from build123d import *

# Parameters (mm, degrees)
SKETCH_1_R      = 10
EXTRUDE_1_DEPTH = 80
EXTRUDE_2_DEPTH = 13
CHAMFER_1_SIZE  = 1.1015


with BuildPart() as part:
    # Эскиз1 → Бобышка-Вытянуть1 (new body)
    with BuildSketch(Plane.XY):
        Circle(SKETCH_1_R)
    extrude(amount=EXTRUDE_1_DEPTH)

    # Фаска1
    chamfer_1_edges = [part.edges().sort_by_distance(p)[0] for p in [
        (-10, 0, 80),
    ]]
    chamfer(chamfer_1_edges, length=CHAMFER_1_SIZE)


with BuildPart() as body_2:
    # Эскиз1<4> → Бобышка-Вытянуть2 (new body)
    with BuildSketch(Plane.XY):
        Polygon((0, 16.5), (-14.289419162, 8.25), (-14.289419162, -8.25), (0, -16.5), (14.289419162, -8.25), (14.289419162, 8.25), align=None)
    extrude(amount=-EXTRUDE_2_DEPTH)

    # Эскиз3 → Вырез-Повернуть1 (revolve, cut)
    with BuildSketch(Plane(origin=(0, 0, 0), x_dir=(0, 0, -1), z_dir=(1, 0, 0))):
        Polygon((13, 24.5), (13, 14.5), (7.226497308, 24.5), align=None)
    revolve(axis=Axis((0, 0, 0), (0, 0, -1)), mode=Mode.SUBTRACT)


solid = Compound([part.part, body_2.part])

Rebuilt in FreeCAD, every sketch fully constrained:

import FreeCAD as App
import Part
import Sketcher

V = App.Vector
Q = App.Units.Quantity


def edges_at(feature, points):
    """Names of the edges that pass closest to the given points."""
    edges = feature.Shape.Edges
    near = lambda p: min(range(len(edges)), key=lambda i: edges[i].distToShape(Part.Vertex(*p))[0])
    return sorted({f"Edge{near(p) + 1}" for p in points})


def add_polygon(sketch, points):
    """Adds a closed chain of lines whose ends are joined by coincident constraints."""
    first, n = sketch.GeometryCount, len(points)
    for a, b in zip(points, points[1:] + points[:1]):
        sketch.addGeometry(Part.LineSegment(App.Vector(*a, 0), App.Vector(*b, 0)), False)
    for i in range(n):
        sketch.addConstraint(Sketcher.Constraint("Coincident", first + i, 2, first + (i + 1) % n, 1))

doc = App.newDocument("Part")
body = doc.addObject("PartDesign::Body", "Body")

# Sketch on XY plane
sketch1 = body.newObject("Sketcher::SketchObject", "Sketch")
sketch1.AttachmentSupport = (doc.getObject("XY_Plane"), [""])
sketch1.MapMode = "FlatFace"
sketch1.addGeometry(Part.Circle(V(0, 0, 0), V(0, 0, 1), 10), False)
sketch1.addConstraint(Sketcher.Constraint("Coincident", 0, 3, -1, 1))
sketch1.addConstraint(Sketcher.Constraint("Diameter", 0, Q("20 mm")))
pad1 = body.newObject("PartDesign::Pad", "Pad")
pad1.Profile = sketch1
pad1.Length = 80
doc.recompute()

chamfer = body.newObject("PartDesign::Chamfer", "Chamfer")
chamfer.Base = (pad1, edges_at(pad1, [(-10, 0, 80)]))
chamfer.Size = 1.1015
body2 = doc.addObject("PartDesign::Body", "Body001")

# Sketch on XY plane
sketch2 = body2.newObject("Sketcher::SketchObject", "Sketch001")
sketch2.AttachmentSupport = (doc.getObject("XY_Plane001"), [""])
sketch2.MapMode = "FlatFace"
add_polygon(sketch2, [(0, 16), (-14, 8), (-14, -8), (0, -16), (14, -8), (14, 8)])  # lines 0-5
sketch2.addConstraint(Sketcher.Constraint("Vertical", 1))
sketch2.addConstraint(Sketcher.Constraint("Vertical", 4))
sketch2.addConstraint(Sketcher.Constraint("Symmetric", 0, 2, 3, 2, -1, 1))
sketch2.addConstraint(Sketcher.Constraint("Symmetric", 2, 2, 5, 2, -1, 1))
sketch2.addConstraint(Sketcher.Constraint("PointOnObject", 2, 2, -2))
sketch2.addConstraint(Sketcher.Constraint("Parallel", 2, 5))
sketch2.addConstraint(Sketcher.Constraint("Horizontal", 1, 2, 3, 2))
sketch2.addConstraint(Sketcher.Constraint("Angle", 0, Q("-150 deg")))
sketch2.addConstraint(Sketcher.Constraint("DistanceY", 1, 2, 1, 1, Q("16.5 mm")))
sketch2.addConstraint(Sketcher.Constraint("DistanceY", 2, 2, 5, 2, Q("33 mm")))
pad2 = body2.newObject("PartDesign::Pad", "Pad001")
pad2.Profile = sketch2
pad2.Length = 13
pad2.Reversed = True

# Sketch on YZ plane
sketch3 = body2.newObject("Sketcher::SketchObject", "Sketch002")
sketch3.AttachmentSupport = (doc.getObject("YZ_Plane001"), [""])
sketch3.MapMode = "FlatFace"
add_polygon(sketch3, [(14, -13), (24, -13), (24, -7)])  # lines 0-2
sketch3.addConstraint(Sketcher.Constraint("Horizontal", 0))
sketch3.addConstraint(Sketcher.Constraint("Vertical", 1))
sketch3.addConstraint(Sketcher.Constraint("DistanceX", 0, 1, 0, 2, Q("10 mm")))
sketch3.addConstraint(Sketcher.Constraint("Angle", 2, Q("-150 deg")))
sketch3.addConstraint(Sketcher.Constraint("DistanceY", 0, 2, -1, 1, Q("13 mm")))
sketch3.addConstraint(Sketcher.Constraint("DistanceX", -1, 1, 0, 2, Q("24.5 mm")))
groove = body2.newObject("PartDesign::Groove", "Groove")
groove.Profile = sketch3
groove.ReferenceAxis = (sketch3, ["V_Axis"])
groove.Angle = 360

doc.recompute()
